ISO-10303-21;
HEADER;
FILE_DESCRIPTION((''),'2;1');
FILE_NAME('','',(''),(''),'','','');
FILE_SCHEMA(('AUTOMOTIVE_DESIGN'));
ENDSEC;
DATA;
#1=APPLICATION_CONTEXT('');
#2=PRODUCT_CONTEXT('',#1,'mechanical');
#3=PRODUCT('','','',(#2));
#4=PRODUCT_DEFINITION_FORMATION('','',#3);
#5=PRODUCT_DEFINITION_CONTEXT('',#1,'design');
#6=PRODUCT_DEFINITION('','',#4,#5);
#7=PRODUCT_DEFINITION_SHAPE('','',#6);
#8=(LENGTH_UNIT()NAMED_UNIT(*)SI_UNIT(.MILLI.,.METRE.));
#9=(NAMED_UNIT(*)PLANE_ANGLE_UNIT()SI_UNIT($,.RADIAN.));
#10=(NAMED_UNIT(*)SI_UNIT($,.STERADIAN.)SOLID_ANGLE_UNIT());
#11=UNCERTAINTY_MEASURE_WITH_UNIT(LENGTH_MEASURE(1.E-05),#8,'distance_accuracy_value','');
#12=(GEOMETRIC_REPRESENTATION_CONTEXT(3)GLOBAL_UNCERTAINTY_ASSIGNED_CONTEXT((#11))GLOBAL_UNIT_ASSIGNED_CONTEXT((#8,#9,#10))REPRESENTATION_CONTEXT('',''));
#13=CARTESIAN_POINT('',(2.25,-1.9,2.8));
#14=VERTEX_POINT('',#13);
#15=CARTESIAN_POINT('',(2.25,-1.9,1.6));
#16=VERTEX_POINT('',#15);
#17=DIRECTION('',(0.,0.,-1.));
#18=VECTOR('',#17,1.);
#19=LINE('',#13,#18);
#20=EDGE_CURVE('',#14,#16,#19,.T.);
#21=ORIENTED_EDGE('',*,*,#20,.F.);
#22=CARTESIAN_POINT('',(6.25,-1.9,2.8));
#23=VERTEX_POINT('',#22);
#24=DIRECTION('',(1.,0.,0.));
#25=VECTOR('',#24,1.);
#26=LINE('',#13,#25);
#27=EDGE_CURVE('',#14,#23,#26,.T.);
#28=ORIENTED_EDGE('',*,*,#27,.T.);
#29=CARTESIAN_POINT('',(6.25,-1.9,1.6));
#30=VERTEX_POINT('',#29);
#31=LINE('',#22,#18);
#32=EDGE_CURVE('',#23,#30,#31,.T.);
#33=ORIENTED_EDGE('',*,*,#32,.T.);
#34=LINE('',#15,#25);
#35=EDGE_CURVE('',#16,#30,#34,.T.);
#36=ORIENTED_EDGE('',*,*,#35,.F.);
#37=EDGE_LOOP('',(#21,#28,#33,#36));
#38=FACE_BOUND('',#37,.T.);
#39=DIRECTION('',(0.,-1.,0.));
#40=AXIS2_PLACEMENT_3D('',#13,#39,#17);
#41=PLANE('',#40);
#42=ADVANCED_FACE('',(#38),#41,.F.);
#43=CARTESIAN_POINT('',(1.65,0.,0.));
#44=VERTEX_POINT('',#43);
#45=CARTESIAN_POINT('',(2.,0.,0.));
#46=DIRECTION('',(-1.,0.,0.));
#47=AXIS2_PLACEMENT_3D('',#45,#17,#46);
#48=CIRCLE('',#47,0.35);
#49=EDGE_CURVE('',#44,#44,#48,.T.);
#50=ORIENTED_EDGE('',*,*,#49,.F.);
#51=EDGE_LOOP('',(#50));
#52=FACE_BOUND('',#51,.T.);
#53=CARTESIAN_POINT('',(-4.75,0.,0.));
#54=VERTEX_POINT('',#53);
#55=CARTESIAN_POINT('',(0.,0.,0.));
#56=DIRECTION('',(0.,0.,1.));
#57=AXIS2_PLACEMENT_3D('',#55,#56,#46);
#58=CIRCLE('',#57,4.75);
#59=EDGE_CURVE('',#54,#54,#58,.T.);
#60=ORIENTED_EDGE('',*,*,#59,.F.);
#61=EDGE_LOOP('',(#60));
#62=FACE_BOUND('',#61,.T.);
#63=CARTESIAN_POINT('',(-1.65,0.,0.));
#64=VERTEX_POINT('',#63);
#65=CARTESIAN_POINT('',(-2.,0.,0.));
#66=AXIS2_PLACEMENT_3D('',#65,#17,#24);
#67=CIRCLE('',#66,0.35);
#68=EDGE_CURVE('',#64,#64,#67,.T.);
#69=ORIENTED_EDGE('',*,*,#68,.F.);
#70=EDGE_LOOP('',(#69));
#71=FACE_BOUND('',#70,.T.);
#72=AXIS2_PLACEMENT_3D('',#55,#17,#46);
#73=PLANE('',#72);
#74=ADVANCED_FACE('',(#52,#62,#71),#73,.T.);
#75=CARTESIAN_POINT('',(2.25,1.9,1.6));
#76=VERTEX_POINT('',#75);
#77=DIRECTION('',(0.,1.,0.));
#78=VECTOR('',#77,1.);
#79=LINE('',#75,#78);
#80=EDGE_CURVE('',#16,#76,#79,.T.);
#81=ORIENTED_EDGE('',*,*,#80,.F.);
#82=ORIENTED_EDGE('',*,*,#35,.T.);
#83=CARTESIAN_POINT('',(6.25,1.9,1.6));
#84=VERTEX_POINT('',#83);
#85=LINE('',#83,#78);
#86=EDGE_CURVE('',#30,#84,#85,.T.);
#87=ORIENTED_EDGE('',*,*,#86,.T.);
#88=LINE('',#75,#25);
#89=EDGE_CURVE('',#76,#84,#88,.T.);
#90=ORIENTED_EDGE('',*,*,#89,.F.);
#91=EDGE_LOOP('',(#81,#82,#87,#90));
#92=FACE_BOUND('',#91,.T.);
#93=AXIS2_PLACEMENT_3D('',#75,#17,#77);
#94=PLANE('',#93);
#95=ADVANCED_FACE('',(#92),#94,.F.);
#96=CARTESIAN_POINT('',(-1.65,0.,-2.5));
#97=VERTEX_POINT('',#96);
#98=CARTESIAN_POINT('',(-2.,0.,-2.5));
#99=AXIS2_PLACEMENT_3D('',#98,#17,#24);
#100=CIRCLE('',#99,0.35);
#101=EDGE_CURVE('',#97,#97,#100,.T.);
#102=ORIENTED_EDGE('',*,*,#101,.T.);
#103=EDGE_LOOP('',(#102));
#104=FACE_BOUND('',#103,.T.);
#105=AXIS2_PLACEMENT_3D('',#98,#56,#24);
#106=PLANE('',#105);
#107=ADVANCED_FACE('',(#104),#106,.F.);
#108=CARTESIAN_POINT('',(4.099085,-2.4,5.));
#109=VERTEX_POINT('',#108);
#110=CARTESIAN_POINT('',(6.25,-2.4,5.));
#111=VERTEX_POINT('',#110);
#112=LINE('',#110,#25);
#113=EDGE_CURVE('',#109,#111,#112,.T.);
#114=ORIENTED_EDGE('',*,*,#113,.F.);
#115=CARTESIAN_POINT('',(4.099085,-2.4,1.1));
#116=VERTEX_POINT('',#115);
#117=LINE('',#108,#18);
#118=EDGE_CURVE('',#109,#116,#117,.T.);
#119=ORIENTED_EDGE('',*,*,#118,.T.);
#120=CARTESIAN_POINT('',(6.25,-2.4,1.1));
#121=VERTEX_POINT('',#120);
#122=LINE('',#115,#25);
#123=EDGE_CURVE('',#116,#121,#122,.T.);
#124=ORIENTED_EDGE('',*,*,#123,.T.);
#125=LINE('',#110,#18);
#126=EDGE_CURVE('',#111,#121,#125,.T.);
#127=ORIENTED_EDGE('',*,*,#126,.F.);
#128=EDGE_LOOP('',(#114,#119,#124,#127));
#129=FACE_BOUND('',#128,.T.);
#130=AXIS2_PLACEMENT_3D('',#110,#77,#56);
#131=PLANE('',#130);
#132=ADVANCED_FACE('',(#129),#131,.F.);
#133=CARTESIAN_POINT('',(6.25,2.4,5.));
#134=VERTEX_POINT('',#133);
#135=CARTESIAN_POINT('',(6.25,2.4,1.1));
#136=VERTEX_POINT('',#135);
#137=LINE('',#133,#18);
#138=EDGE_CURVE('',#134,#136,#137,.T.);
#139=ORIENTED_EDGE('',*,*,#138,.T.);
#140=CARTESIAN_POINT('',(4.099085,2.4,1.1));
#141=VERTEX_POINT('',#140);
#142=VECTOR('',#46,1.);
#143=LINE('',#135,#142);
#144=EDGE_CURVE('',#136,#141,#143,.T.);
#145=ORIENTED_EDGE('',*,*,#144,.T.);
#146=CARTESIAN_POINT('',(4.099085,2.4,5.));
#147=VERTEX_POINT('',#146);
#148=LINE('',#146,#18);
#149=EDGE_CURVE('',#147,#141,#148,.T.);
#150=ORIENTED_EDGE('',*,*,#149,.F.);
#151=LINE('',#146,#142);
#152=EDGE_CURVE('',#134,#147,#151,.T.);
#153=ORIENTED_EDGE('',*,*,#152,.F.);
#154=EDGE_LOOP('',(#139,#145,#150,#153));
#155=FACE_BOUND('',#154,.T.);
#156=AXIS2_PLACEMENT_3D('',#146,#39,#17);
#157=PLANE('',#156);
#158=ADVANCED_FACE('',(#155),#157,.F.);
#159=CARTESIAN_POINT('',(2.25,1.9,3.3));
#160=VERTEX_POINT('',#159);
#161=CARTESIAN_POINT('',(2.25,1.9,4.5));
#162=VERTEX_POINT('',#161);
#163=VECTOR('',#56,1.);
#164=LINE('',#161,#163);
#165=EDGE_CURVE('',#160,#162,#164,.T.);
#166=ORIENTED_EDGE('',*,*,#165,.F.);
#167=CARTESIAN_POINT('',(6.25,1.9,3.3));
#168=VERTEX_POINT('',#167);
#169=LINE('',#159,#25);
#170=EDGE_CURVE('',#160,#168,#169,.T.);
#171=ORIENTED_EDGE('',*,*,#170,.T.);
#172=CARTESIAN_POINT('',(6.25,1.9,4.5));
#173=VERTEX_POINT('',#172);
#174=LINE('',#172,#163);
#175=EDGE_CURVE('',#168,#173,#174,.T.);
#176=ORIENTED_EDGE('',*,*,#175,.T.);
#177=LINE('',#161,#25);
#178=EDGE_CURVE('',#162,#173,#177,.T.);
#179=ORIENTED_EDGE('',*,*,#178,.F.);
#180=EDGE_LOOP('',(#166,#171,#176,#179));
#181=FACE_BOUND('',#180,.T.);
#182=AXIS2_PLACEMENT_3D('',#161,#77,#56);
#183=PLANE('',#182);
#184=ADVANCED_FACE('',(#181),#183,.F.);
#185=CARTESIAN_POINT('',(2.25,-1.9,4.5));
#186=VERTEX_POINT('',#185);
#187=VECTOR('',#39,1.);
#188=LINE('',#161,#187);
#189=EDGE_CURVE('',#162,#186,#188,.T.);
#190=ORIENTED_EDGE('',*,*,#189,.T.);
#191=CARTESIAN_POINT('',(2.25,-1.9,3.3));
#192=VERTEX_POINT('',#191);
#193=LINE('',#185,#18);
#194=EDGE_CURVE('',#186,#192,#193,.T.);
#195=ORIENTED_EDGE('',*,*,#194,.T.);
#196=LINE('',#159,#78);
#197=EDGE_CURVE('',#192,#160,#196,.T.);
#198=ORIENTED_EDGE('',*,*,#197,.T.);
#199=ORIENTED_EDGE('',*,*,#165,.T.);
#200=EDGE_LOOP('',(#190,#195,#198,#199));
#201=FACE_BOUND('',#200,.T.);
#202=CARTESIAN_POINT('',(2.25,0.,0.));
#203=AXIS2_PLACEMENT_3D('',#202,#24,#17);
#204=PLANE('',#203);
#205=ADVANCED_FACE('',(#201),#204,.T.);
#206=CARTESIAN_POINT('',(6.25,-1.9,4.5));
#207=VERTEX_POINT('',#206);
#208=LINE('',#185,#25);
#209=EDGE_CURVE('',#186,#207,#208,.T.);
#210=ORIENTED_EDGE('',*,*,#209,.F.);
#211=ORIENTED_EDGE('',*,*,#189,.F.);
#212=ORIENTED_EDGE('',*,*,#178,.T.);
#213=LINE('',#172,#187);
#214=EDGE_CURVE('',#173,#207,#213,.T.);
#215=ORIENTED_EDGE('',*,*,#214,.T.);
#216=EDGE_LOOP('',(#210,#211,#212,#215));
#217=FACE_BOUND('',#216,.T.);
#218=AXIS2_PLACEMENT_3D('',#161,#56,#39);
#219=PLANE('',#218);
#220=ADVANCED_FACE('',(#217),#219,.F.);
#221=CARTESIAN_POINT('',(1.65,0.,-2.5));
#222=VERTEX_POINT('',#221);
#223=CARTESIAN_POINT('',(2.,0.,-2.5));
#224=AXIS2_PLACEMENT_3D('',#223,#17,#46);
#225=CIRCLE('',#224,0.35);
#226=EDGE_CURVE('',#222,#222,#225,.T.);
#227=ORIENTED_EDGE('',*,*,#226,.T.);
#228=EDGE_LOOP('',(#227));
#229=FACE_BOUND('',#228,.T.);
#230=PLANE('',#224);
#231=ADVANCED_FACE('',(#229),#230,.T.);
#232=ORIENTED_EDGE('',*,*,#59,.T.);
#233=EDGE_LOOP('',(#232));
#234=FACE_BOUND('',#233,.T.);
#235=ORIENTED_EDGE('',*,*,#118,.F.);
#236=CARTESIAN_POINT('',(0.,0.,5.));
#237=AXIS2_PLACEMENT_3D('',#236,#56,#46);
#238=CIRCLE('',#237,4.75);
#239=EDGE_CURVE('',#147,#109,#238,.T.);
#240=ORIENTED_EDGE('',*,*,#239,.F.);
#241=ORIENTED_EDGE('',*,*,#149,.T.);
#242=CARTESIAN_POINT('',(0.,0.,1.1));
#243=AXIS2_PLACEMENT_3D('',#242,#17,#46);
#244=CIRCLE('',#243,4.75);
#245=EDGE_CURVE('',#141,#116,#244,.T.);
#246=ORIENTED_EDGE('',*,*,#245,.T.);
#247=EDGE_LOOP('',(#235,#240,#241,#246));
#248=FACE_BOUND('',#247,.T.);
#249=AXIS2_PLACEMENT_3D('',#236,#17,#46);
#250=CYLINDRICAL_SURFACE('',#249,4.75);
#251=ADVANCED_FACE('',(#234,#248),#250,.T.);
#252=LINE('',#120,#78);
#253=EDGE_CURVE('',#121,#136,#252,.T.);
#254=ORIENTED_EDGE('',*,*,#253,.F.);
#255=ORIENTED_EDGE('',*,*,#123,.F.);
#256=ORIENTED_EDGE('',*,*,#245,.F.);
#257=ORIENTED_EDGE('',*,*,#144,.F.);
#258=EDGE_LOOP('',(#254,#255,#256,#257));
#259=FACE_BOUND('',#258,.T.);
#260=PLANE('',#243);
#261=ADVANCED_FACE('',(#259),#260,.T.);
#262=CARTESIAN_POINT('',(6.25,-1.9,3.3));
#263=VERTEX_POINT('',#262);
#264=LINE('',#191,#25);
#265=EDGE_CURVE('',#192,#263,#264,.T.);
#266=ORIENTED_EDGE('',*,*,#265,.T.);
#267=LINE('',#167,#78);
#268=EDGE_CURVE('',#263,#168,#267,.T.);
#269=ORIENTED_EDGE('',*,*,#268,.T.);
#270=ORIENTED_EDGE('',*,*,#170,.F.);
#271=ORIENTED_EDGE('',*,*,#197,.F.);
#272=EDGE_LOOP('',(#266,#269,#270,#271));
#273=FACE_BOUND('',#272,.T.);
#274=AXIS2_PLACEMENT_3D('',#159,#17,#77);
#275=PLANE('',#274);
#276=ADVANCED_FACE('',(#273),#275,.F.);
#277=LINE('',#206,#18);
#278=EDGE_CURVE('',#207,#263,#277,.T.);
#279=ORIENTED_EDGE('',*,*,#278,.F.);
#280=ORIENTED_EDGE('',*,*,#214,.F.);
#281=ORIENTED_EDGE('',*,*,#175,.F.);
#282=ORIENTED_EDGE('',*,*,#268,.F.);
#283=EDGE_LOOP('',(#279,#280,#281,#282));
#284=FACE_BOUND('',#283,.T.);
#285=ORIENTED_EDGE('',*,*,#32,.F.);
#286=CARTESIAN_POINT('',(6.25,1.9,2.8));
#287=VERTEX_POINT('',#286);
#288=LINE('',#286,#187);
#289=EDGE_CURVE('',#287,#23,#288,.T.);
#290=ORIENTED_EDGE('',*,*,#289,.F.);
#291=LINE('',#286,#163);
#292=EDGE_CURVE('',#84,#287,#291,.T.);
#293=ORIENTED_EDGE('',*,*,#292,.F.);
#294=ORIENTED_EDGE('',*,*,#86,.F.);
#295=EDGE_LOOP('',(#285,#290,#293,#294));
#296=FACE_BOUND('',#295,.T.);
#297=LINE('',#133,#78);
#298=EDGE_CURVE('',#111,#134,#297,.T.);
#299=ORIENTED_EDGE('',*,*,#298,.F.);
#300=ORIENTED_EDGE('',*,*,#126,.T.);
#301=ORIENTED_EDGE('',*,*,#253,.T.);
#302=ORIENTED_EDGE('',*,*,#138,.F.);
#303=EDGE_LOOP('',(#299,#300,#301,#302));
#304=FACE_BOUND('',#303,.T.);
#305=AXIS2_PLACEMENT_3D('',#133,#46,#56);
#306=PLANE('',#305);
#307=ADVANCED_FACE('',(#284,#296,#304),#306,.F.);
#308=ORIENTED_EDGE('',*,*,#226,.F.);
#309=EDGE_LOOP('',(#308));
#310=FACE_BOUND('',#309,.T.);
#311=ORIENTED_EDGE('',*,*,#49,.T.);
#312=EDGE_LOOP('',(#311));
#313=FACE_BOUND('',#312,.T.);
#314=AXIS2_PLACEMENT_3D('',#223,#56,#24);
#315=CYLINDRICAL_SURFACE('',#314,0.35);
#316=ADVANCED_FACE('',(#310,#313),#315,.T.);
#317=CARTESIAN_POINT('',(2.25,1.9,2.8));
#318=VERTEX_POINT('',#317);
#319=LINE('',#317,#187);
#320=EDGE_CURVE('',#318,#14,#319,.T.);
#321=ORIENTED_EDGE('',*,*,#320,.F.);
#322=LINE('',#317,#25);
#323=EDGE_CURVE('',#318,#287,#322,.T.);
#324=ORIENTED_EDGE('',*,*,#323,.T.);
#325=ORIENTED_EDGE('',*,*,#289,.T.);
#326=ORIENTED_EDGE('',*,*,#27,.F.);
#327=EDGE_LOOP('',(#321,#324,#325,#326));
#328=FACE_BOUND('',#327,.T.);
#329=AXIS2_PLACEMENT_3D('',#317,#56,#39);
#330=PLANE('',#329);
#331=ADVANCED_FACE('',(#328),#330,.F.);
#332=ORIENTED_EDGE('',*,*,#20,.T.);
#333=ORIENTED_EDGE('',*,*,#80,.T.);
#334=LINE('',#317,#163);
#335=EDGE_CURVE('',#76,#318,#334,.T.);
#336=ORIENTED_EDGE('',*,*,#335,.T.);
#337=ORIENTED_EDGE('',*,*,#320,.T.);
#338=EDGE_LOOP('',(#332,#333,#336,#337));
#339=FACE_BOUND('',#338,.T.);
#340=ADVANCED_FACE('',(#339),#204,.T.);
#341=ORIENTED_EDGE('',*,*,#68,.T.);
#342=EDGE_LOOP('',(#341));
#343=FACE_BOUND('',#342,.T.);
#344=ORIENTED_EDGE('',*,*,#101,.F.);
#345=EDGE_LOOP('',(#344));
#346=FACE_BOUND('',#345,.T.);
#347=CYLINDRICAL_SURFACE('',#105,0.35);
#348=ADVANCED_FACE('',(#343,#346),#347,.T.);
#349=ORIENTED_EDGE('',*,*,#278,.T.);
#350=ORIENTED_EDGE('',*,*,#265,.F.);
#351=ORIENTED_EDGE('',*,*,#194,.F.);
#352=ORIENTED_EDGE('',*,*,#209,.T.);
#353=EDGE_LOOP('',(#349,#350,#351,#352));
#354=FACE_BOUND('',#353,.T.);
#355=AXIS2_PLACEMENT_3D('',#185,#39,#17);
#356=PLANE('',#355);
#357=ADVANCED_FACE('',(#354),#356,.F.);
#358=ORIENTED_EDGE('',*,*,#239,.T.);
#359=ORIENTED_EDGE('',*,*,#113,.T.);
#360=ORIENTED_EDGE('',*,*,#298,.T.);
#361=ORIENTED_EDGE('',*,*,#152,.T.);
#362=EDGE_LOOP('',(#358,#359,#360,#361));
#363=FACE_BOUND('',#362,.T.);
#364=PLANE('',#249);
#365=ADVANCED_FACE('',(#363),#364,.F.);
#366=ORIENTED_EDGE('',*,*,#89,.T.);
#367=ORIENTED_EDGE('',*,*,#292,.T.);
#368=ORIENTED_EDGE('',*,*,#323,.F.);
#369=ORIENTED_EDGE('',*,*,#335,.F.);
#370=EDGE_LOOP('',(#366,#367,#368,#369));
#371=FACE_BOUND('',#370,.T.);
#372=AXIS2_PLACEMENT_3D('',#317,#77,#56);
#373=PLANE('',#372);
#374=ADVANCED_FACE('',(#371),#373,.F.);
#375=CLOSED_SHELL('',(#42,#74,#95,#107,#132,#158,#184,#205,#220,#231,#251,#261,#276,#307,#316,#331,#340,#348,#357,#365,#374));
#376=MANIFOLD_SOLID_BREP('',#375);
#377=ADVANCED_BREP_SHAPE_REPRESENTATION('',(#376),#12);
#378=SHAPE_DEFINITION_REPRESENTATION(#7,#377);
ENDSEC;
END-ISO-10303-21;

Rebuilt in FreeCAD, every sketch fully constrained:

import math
import FreeCAD as App
import Part
import Sketcher

doc = App.newDocument("Part")
body = doc.addObject("PartDesign::Body", "Body")

# Sketch on XY plane
sketch1 = body.newObject("Sketcher::SketchObject", "Sketch")
sketch1.AttachmentSupport = (doc.getObject("XY_Plane"), [""])
sketch1.MapMode = "FlatFace"
sketch1.addGeometry(Part.LineSegment(App.Vector(6.2, 2.4, 0), App.Vector(4.1, 2.4, 0)), False)
sketch1.addGeometry(Part.ArcOfCircle(Part.Circle(App.Vector(0, 0, 0), App.Vector(0, 0, 1), 4.8), math.radians(30), math.radians(330)), False)
sketch1.addGeometry(Part.LineSegment(App.Vector(4.1, -2.4, 0), App.Vector(6.2, -2.4, 0)), False)
sketch1.addGeometry(Part.LineSegment(App.Vector(6.2, -2.4, 0), App.Vector(6.2, 2.4, 0)), False)
sketch1.addConstraint(Sketcher.Constraint("Coincident", 0, 2, 1, 1))
sketch1.addConstraint(Sketcher.Constraint("Coincident", 1, 2, 2, 1))
sketch1.addConstraint(Sketcher.Constraint("Coincident", 2, 2, 3, 1))
sketch1.addConstraint(Sketcher.Constraint("Coincident", 3, 2, 0, 1))
sketch1.addConstraint(Sketcher.Constraint("Horizontal", 0))
sketch1.addConstraint(Sketcher.Constraint("Horizontal", 2))
sketch1.addConstraint(Sketcher.Constraint("Vertical", 3))
sketch1.addConstraint(Sketcher.Constraint("Coincident", 1, 3, -1, 1))
sketch1.addConstraint(Sketcher.Constraint("Vertical", 0, 2, 1, 2))
sketch1.addConstraint(Sketcher.Constraint("Radius", 1, 4.75))
sketch1.addConstraint(Sketcher.Constraint("DistanceY", 3, 1, 3, 2, 4.8))
sketch1.addConstraint(Sketcher.Constraint("DistanceX", -1, 1, 2, 2, 6.25))
pad1 = body.newObject("PartDesign::Pad", "Pad")
pad1.Profile = sketch1
pad1.Length = 5

# Sketch on XY plane
sketch2 = body.newObject("Sketcher::SketchObject", "Sketch001")
sketch2.AttachmentSupport = (doc.getObject("XY_Plane"), [""])
sketch2.MapMode = "FlatFace"
sketch2.addGeometry(Part.LineSegment(App.Vector(6.2, -2.4, 0), App.Vector(4.1, -2.4, 0)), False)
sketch2.addGeometry(Part.ArcOfCircle(Part.Circle(App.Vector(0, 0, 0), App.Vector(0, 0, 1), 4.8), math.radians(-30), math.radians(30)), False)
sketch2.addGeometry(Part.LineSegment(App.Vector(4.1, 2.4, 0), App.Vector(6.2, 2.4, 0)), False)
sketch2.addGeometry(Part.LineSegment(App.Vector(6.2, 2.4, 0), App.Vector(6.2, -2.4, 0)), False)
sketch2.addConstraint(Sketcher.Constraint("Coincident", 0, 2, 1, 1))
sketch2.addConstraint(Sketcher.Constraint("Coincident", 1, 2, 2, 1))
sketch2.addConstraint(Sketcher.Constraint("Coincident", 2, 2, 3, 1))
sketch2.addConstraint(Sketcher.Constraint("Coincident", 3, 2, 0, 1))
sketch2.addConstraint(Sketcher.Constraint("Horizontal", 0))
sketch2.addConstraint(Sketcher.Constraint("Horizontal", 2))
sketch2.addConstraint(Sketcher.Constraint("Vertical", 3))
sketch2.addConstraint(Sketcher.Constraint("Coincident", 1, 3, -1, 1))
sketch2.addConstraint(Sketcher.Constraint("Vertical", 0, 2, 1, 2))
sketch2.addConstraint(Sketcher.Constraint("Radius", 1, 4.75))
sketch2.addConstraint(Sketcher.Constraint("DistanceY", 3, 2, 3, 1, 4.8))
sketch2.addConstraint(Sketcher.Constraint("DistanceX", -1, 1, 2, 2, 6.25))
pocket1 = body.newObject("PartDesign::Pocket", "Pocket")
pocket1.Profile = sketch2
pocket1.Length = 1.1
pocket1.Reversed = True

# Sketch on YZ plane
sketch3 = body.newObject("Sketcher::SketchObject", "Sketch002")
sketch3.AttachmentSupport = (doc.getObject("YZ_Plane"), [""])
sketch3.MapMode = "FlatFace"
sketch3.AttachmentOffset = App.Placement(App.Vector(0, 0, 6.25), App.Rotation())
sketch3.addGeometry(Part.LineSegment(App.Vector(1.9, 4.5, 0), App.Vector(-1.9, 4.5, 0)), False)
sketch3.addGeometry(Part.LineSegment(App.Vector(-1.9, 4.5, 0), App.Vector(-1.9, 3.3, 0)), False)
sketch3.addGeometry(Part.LineSegment(App.Vector(-1.9, 3.3, 0), App.Vector(1.9, 3.3, 0)), False)
sketch3.addGeometry(Part.LineSegment(App.Vector(1.9, 3.3, 0), App.Vector(1.9, 4.5, 0)), False)
sketch3.addGeometry(Part.LineSegment(App.Vector(1.9, 2.8, 0), App.Vector(-1.9, 2.8, 0)), False)
sketch3.addGeometry(Part.LineSegment(App.Vector(-1.9, 2.8, 0), App.Vector(-1.9, 1.6, 0)), False)
sketch3.addGeometry(Part.LineSegment(App.Vector(-1.9, 1.6, 0), App.Vector(1.9, 1.6, 0)), False)
sketch3.addGeometry(Part.LineSegment(App.Vector(1.9, 1.6, 0), App.Vector(1.9, 2.8, 0)), False)
sketch3.addConstraint(Sketcher.Constraint("Coincident", 0, 2, 1, 1))
sketch3.addConstraint(Sketcher.Constraint("Coincident", 1, 2, 2, 1))
sketch3.addConstraint(Sketcher.Constraint("Coincident", 2, 2, 3, 1))
sketch3.addConstraint(Sketcher.Constraint("Coincident", 3, 2, 0, 1))
sketch3.addConstraint(Sketcher.Constraint("Coincident", 4, 2, 5, 1))
sketch3.addConstraint(Sketcher.Constraint("Coincident", 5, 2, 6, 1))
sketch3.addConstraint(Sketcher.Constraint("Coincident", 6, 2, 7, 1))
sketch3.addConstraint(Sketcher.Constraint("Coincident", 7, 2, 4, 1))
sketch3.addConstraint(Sketcher.Constraint("Horizontal", 0))
sketch3.addConstraint(Sketcher.Constraint("Vertical", 1))
sketch3.addConstraint(Sketcher.Constraint("Horizontal", 2))
sketch3.addConstraint(Sketcher.Constraint("Vertical", 3))
sketch3.addConstraint(Sketcher.Constraint("Horizontal", 4))
sketch3.addConstraint(Sketcher.Constraint("Vertical", 5))
sketch3.addConstraint(Sketcher.Constraint("Horizontal", 6))
sketch3.addConstraint(Sketcher.Constraint("Vertical", 7))
sketch3.addConstraint(Sketcher.Constraint("Vertical", 1, 2, 4, 2))
sketch3.addConstraint(Sketcher.Constraint("Vertical", 3, 2, 6, 2))
sketch3.addConstraint(Sketcher.Constraint("Equal", 3, 5))
sketch3.addConstraint(Sketcher.Constraint("DistanceX", 0, 2, 0, 1, 3.8))
sketch3.addConstraint(Sketcher.Constraint("DistanceY", 1, 2, 1, 1, 1.2))
sketch3.addConstraint(Sketcher.Constraint("DistanceX", 0, 2, -1, 1, 1.9))
sketch3.addConstraint(Sketcher.Constraint("DistanceY", -1, 1, 0, 2, 4.5))
sketch3.addConstraint(Sketcher.Constraint("DistanceY", -1, 1, 4, 2, 2.8))
pocket2 = body.newObject("PartDesign::Pocket", "Pocket001")
pocket2.Profile = sketch3
pocket2.Length = 4

# Sketch on XY plane
sketch4 = body.newObject("Sketcher::SketchObject", "Sketch003")
sketch4.AttachmentSupport = (doc.getObject("XY_Plane"), [""])
sketch4.MapMode = "FlatFace"
sketch4.addGeometry(Part.Circle(App.Vector(2, 0, 0), App.Vector(0, 0, 1), 0.35), False)
sketch4.addGeometry(Part.Circle(App.Vector(-2, 0, 0), App.Vector(0, 0, 1), 0.35), False)
sketch4.addConstraint(Sketcher.Constraint("Equal", 0, 1))
sketch4.addConstraint(Sketcher.Constraint("Symmetric", 0, 3, 1, 3, -1, 1))
sketch4.addConstraint(Sketcher.Constraint("PointOnObject", 0, 3, -1))
sketch4.addConstraint(Sketcher.Constraint("Diameter", 0, 0.7))
sketch4.addConstraint(Sketcher.Constraint("DistanceX", -1, 1, 0, 3, 2.0))
pad2 = body.newObject("PartDesign::Pad", "Pad001")
pad2.Profile = sketch4
pad2.Length = 2.5
pad2.Reversed = True

doc.recompute()
